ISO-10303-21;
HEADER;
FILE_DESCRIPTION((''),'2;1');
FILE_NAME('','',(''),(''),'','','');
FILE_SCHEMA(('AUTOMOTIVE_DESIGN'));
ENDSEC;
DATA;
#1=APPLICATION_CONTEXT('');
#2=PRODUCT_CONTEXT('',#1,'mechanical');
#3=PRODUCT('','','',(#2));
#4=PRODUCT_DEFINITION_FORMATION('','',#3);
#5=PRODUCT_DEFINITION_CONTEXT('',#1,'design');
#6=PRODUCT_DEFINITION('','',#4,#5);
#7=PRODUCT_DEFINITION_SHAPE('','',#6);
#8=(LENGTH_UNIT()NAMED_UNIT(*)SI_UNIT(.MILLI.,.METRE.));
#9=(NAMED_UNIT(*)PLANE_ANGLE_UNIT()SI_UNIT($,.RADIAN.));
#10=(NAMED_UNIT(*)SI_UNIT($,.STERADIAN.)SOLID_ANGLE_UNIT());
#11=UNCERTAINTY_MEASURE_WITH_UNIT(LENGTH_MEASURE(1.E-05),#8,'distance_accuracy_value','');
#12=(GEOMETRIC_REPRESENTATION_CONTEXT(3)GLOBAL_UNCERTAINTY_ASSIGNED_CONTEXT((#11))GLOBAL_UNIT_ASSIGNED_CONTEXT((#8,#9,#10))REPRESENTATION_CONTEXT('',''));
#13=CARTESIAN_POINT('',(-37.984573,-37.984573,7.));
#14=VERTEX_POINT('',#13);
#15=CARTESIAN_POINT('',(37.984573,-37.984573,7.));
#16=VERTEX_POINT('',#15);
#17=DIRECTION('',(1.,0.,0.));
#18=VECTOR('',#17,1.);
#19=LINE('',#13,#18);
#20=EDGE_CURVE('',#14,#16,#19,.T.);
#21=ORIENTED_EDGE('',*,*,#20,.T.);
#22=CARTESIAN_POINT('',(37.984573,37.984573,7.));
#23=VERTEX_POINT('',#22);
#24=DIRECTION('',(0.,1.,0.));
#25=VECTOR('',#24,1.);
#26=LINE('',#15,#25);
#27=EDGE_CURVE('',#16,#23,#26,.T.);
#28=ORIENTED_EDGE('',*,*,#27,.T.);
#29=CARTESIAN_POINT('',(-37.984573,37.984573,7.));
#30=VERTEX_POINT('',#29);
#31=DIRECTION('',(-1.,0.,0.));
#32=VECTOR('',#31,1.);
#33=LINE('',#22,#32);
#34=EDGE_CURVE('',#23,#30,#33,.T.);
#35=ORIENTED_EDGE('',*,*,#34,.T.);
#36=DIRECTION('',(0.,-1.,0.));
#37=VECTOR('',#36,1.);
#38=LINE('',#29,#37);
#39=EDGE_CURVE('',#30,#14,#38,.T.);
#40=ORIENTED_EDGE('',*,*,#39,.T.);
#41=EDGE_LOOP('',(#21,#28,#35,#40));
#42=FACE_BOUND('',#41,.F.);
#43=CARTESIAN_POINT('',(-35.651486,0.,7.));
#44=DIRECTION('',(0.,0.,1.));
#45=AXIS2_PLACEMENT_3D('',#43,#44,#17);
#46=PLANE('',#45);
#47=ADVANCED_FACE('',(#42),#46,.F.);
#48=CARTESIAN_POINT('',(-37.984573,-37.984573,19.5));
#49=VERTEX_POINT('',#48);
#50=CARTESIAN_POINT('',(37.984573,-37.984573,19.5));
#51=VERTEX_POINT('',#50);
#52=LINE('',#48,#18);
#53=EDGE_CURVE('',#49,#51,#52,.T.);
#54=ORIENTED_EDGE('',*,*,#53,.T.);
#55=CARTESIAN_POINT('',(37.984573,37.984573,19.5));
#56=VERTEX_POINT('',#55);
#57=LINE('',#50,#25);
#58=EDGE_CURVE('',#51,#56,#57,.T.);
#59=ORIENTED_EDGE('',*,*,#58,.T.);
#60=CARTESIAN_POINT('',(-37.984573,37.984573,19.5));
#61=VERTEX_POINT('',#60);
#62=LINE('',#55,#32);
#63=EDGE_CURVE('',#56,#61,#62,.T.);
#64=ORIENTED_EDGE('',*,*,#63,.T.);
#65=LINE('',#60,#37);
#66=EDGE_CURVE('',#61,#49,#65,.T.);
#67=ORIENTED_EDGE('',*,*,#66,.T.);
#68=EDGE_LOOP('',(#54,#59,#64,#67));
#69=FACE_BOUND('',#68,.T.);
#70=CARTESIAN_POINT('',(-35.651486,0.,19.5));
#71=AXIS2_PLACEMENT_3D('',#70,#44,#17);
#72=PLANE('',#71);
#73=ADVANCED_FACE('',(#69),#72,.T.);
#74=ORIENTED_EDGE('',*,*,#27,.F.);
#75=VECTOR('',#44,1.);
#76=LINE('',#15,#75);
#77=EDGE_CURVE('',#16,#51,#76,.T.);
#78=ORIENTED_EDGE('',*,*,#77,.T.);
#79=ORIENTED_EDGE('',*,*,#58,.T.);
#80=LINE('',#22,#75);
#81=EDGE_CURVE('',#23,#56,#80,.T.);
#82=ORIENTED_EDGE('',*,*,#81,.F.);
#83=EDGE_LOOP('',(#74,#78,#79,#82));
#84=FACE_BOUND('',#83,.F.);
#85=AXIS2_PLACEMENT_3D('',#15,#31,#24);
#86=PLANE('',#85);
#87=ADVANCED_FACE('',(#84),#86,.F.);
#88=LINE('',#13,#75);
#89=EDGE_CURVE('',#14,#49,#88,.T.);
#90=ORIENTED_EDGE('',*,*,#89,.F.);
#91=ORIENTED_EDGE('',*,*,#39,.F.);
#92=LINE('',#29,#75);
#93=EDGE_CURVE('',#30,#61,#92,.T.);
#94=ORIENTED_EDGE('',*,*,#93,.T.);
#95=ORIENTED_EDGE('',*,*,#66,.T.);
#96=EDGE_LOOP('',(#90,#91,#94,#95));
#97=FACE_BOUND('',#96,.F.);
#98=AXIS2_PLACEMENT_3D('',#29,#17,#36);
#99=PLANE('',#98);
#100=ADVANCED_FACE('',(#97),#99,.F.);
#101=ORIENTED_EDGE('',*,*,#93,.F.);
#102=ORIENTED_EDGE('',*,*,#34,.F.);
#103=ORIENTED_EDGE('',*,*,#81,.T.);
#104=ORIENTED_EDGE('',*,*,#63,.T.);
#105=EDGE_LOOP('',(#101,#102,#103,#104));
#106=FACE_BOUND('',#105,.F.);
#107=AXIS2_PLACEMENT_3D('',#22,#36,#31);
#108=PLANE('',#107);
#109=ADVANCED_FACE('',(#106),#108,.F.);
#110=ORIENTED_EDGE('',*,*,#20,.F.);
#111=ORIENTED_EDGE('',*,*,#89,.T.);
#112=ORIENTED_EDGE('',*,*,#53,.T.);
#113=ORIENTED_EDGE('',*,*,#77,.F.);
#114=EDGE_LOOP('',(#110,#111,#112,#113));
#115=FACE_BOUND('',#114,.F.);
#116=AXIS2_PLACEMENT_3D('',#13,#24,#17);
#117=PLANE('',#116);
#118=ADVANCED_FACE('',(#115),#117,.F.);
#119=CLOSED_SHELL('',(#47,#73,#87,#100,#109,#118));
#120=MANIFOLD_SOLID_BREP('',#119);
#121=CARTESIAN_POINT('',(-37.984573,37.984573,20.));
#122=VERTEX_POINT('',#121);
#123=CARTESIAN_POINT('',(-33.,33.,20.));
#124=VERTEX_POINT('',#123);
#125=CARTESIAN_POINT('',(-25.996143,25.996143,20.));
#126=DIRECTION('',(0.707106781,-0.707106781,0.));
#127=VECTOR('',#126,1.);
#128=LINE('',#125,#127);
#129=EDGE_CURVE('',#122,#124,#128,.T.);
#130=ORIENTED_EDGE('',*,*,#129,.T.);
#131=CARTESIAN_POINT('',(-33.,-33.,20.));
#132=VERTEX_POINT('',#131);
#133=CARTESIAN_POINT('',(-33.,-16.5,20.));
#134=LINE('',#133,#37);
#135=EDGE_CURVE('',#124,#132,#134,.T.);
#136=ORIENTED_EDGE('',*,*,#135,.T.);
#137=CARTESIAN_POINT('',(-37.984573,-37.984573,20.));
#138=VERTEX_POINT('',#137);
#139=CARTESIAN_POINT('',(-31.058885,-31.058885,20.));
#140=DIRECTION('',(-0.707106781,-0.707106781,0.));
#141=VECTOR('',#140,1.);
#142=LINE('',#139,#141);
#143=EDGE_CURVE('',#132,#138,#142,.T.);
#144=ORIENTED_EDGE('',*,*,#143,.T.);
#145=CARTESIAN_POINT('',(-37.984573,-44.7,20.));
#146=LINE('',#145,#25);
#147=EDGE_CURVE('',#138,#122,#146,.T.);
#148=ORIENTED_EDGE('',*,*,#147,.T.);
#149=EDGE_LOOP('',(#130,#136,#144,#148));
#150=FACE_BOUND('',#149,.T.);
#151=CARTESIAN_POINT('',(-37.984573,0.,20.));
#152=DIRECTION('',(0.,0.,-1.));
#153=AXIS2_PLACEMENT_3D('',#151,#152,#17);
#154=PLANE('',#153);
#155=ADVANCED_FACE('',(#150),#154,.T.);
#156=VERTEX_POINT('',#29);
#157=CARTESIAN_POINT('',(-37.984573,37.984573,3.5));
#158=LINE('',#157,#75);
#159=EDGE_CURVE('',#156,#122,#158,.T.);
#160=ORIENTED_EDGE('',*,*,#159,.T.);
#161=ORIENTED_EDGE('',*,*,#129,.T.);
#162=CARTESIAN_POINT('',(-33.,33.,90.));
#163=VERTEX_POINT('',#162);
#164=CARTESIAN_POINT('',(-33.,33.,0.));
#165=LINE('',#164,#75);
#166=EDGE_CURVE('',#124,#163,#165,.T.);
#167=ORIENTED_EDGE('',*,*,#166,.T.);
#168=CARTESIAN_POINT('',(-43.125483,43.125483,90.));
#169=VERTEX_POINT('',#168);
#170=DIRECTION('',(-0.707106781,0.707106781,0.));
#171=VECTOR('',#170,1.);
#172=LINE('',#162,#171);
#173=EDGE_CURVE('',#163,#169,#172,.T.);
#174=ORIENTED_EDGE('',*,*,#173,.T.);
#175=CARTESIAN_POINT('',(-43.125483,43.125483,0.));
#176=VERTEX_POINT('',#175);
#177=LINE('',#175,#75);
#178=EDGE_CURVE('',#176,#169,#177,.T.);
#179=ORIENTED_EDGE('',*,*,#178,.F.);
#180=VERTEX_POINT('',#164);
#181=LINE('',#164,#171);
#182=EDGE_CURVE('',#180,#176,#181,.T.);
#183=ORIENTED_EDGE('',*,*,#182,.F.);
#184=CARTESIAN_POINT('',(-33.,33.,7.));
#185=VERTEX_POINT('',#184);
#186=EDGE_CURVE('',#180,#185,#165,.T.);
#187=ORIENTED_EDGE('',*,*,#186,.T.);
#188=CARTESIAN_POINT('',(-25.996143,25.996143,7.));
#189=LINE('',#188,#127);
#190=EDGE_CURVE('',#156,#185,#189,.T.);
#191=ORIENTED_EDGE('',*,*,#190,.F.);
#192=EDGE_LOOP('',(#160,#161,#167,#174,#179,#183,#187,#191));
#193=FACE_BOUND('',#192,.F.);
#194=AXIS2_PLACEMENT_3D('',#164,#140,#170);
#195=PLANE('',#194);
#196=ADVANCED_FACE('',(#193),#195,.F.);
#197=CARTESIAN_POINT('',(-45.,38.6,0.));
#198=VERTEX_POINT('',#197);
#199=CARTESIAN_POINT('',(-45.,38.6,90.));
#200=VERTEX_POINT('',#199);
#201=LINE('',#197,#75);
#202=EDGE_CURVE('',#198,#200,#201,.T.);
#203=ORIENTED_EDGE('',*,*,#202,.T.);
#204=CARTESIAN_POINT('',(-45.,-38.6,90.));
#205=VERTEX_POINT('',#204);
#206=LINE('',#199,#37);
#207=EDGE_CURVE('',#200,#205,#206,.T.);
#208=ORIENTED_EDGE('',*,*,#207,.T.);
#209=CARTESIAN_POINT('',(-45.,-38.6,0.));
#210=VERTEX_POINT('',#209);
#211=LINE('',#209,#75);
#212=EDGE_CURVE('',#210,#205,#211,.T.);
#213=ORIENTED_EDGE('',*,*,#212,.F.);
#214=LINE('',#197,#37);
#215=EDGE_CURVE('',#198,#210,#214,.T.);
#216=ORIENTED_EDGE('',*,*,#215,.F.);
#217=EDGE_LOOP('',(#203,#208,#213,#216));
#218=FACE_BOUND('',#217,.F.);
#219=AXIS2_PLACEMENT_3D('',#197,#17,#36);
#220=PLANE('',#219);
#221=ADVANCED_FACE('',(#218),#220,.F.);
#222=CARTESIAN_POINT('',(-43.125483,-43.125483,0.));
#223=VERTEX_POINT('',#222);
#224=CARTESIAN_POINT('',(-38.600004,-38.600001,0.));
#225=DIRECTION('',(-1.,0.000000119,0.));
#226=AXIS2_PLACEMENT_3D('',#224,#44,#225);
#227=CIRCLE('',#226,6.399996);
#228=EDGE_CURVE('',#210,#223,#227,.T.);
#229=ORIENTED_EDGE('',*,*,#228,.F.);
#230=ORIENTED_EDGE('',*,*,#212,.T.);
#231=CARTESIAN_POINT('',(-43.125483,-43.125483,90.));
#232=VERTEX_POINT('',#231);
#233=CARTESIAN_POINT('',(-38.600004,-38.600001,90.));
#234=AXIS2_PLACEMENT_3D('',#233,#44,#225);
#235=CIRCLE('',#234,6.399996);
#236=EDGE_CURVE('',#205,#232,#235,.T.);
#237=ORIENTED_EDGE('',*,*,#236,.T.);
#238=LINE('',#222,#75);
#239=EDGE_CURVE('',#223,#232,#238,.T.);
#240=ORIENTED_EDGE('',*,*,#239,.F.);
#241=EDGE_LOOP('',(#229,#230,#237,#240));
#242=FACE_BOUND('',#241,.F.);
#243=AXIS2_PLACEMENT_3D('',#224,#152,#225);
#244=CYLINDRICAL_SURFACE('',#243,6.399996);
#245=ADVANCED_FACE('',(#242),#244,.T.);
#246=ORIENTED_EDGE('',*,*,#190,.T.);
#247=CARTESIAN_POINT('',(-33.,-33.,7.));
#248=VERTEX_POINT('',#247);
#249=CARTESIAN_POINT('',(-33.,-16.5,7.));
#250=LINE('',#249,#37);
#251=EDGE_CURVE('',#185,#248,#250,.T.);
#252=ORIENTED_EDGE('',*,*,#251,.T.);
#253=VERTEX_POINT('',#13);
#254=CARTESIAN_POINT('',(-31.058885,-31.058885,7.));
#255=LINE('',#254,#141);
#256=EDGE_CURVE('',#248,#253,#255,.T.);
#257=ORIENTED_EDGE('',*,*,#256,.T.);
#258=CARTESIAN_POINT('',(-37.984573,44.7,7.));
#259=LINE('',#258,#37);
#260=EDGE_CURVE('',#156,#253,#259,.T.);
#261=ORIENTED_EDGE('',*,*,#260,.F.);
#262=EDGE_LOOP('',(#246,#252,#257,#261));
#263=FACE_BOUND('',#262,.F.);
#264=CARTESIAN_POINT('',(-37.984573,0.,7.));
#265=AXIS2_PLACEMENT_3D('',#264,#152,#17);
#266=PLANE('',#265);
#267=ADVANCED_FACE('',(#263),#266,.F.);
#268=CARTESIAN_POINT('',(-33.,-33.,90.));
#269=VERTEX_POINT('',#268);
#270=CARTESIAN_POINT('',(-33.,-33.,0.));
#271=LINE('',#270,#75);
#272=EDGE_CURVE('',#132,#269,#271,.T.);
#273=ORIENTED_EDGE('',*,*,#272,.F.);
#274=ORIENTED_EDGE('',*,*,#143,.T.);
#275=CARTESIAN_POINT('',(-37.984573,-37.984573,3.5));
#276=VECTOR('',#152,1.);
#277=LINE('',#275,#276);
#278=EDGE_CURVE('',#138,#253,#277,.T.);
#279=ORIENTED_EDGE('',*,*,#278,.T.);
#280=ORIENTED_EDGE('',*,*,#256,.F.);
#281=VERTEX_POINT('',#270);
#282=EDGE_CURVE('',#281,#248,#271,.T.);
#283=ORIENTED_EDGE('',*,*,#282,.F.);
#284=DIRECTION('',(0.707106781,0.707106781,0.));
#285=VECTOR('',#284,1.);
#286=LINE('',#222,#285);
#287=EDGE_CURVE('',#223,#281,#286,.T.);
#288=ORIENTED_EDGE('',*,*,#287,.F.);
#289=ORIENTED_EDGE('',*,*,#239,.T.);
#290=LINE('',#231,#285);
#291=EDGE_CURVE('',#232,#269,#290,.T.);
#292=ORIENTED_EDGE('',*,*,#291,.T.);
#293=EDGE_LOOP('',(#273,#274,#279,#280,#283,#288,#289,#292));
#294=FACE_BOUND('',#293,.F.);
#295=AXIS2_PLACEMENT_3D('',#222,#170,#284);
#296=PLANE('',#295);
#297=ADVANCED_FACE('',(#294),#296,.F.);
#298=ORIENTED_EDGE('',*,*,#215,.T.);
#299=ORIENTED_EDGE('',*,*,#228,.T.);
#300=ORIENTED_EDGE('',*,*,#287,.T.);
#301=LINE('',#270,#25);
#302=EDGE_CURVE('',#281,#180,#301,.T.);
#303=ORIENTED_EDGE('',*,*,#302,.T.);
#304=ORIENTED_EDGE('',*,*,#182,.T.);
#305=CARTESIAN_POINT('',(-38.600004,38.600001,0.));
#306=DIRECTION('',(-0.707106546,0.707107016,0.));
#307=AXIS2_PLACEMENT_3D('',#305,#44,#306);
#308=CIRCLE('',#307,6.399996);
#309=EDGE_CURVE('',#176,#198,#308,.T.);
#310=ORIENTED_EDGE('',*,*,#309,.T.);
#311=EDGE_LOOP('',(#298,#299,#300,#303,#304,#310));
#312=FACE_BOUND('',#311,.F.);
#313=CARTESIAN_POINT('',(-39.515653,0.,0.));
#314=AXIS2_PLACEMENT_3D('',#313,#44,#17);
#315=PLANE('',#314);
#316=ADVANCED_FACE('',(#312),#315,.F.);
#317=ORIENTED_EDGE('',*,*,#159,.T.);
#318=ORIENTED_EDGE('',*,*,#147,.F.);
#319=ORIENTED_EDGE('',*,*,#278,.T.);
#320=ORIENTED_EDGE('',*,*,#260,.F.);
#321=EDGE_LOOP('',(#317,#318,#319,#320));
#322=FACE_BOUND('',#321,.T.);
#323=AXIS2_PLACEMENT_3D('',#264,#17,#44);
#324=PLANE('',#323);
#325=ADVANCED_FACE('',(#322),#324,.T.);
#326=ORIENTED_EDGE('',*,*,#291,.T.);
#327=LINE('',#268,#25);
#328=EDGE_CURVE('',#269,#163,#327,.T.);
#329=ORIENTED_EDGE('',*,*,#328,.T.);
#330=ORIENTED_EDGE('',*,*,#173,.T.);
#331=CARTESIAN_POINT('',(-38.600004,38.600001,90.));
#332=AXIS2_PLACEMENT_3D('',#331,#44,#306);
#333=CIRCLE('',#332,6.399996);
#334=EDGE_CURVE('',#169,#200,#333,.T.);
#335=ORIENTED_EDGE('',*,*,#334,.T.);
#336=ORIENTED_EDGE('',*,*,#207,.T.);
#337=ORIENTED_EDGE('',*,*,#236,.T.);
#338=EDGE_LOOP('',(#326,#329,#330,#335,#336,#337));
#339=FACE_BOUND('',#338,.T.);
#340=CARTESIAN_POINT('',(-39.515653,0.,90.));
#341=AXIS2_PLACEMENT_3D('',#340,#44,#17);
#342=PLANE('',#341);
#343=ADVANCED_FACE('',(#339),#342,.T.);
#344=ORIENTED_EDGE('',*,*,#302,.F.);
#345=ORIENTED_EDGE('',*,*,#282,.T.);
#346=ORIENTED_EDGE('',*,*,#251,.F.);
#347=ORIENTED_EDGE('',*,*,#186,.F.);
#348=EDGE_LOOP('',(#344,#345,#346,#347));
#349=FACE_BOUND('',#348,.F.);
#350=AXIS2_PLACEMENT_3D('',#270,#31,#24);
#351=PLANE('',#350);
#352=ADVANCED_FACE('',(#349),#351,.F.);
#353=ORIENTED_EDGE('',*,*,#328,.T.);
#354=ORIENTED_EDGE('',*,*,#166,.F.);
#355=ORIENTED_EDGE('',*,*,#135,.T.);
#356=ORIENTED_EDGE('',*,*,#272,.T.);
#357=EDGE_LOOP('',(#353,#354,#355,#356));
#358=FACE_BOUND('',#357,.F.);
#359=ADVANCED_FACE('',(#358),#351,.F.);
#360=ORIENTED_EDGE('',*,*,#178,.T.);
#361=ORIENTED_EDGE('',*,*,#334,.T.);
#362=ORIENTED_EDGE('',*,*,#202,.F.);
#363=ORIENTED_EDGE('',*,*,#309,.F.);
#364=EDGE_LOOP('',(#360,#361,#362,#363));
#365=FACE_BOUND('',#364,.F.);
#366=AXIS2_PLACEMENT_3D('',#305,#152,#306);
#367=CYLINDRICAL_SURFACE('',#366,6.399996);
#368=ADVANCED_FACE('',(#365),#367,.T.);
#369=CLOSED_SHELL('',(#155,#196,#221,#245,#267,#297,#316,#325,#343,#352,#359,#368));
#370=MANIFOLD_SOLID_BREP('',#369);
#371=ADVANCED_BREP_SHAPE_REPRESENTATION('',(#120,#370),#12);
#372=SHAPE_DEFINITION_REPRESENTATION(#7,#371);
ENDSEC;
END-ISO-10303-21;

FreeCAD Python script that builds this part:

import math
import FreeCAD as App
import Part
import Sketcher
Q = App.Units.Quantity

doc = App.newDocument("Part")
body = doc.addObject("PartDesign::Body", "Body")

# Sketch on XY plane
sketch1 = body.newObject("Sketcher::SketchObject", "Sketch")
sketch1.AttachmentSupport = (doc.getObject("XY_Plane"), [""])
sketch1.MapMode = "FlatFace"
sketch1.addGeometry(Part.ArcOfCircle(Part.Circle(App.Vector(-38.6, -38.6, 0), App.Vector(0, 0, 1), 6.4), math.radians(180), math.radians(225)), False)
sketch1.addGeometry(Part.LineSegment(App.Vector(-43.1, -43.1, 0), App.Vector(-33, -33, 0)), False)
sketch1.addGeometry(Part.LineSegment(App.Vector(-33, -33, 0), App.Vector(-33, 33, 0)), False)
sketch1.addGeometry(Part.LineSegment(App.Vector(-33, 33, 0), App.Vector(-43.1, 43.1, 0)), False)
sketch1.addGeometry(Part.ArcOfCircle(Part.Circle(App.Vector(-38.6, 38.6, 0), App.Vector(0, 0, 1), 6.4), math.radians(135), math.radians(180)), False)
sketch1.addGeometry(Part.LineSegment(App.Vector(-45, 38.6, 0), App.Vector(-45, -38.6, 0)), False)
sketch1.addConstraint(Sketcher.Constraint("Coincident", 0, 2, 1, 1))
sketch1.addConstraint(Sketcher.Constraint("Coincident", 1, 2, 2, 1))
sketch1.addConstraint(Sketcher.Constraint("Coincident", 2, 2, 3, 1))
sketch1.addConstraint(Sketcher.Constraint("Coincident", 3, 2, 4, 1))
sketch1.addConstraint(Sketcher.Constraint("Tangent", 4, 2, 5, 1))
sketch1.addConstraint(Sketcher.Constraint("Tangent", 5, 2, 0, 1))
sketch1.addConstraint(Sketcher.Constraint("Vertical", 2))
sketch1.addConstraint(Sketcher.Constraint("Vertical", 5))
sketch1.addConstraint(Sketcher.Constraint("Equal", 0, 4))
sketch1.addConstraint(Sketcher.Constraint("Symmetric", 0, 2, 3, 2, -1))
sketch1.addConstraint(Sketcher.Constraint("Perpendicular", 1, 3))
sketch1.addConstraint(Sketcher.Constraint("Equal", 1, 3))
sketch1.addConstraint(Sketcher.Constraint("DistanceY", 2, 1, 2, 2, Q("66 mm")))
sketch1.addConstraint(Sketcher.Constraint("DistanceY", 5, 2, 5, 1, Q("77.2 mm")))
sketch1.addConstraint(Sketcher.Constraint("DistanceX", 1, 2, -1, 1, Q("33 mm")))
sketch1.addConstraint(Sketcher.Constraint("DistanceX", 4, 2, -1, 1, Q("45 mm")))
sketch1.addConstraint(Sketcher.Constraint("Radius", 0, Q("6.399996 mm")))
pad1 = body.newObject("PartDesign::Pad", "Pad")
pad1.Profile = sketch1
pad1.Length = 90

# Sketch on XZ plane
sketch2 = body.newObject("Sketcher::SketchObject", "Sketch001")
sketch2.AttachmentSupport = (doc.getObject("XZ_Plane"), [""])
sketch2.MapMode = "FlatFace"
sketch2.addGeometry(Part.LineSegment(App.Vector(-38, 20, 0), App.Vector(-38, 7, 0)), False)
sketch2.addGeometry(Part.LineSegment(App.Vector(-38, 7, 0), App.Vector(-33, 7, 0)), False)
sketch2.addGeometry(Part.LineSegment(App.Vector(-33, 7, 0), App.Vector(-33, 20, 0)), False)
sketch2.addGeometry(Part.LineSegment(App.Vector(-33, 20, 0), App.Vector(-38, 20, 0)), False)
sketch2.addConstraint(Sketcher.Constraint("Coincident", 0, 2, 1, 1))
sketch2.addConstraint(Sketcher.Constraint("Coincident", 1, 2, 2, 1))
sketch2.addConstraint(Sketcher.Constraint("Coincident", 2, 2, 3, 1))
sketch2.addConstraint(Sketcher.Constraint("Coincident", 3, 2, 0, 1))
sketch2.addConstraint(Sketcher.Constraint("Vertical", 0))
sketch2.addConstraint(Sketcher.Constraint("Horizontal", 1))
sketch2.addConstraint(Sketcher.Constraint("Vertical", 2))
sketch2.addConstraint(Sketcher.Constraint("Horizontal", 3))
sketch2.addConstraint(Sketcher.Constraint("DistanceX", 1, 1, 1, 2, Q("5 mm")))
sketch2.addConstraint(Sketcher.Constraint("DistanceY", 0, 2, 0, 1, Q("13 mm")))
sketch2.addConstraint(Sketcher.Constraint("DistanceY", -1, 1, 0, 2, Q("7 mm")))
sketch2.addConstraint(Sketcher.Constraint("DistanceX", 0, 2, -1, 1, Q("37.984573 mm")))
pocket1 = body.newObject("PartDesign::Pocket", "Pocket")
pocket1.Profile = sketch2
pocket1.Length = 89.4
pocket1.Midplane = True
body2 = doc.addObject("PartDesign::Body", "Body001")

# Sketch on XY plane
sketch3 = body2.newObject("Sketcher::SketchObject", "Sketch002")
sketch3.AttachmentSupport = (doc.getObject("XY_Plane001"), [""])
sketch3.MapMode = "FlatFace"
sketch3.AttachmentOffset = App.Placement(App.Vector(0, 0, 7), App.Rotation())
sketch3.addGeometry(Part.LineSegment(App.Vector(-38, 38, 0), App.Vector(-38, -38, 0)), False)
sketch3.addGeometry(Part.LineSegment(App.Vector(-38, -38, 0), App.Vector(38, -38, 0)), False)
sketch3.addGeometry(Part.LineSegment(App.Vector(38, -38, 0), App.Vector(38, 38, 0)), False)
sketch3.addGeometry(Part.LineSegment(App.Vector(38, 38, 0), App.Vector(-38, 38, 0)), False)
sketch3.addConstraint(Sketcher.Constraint("Coincident", 0, 2, 1, 1))
sketch3.addConstraint(Sketcher.Constraint("Coincident", 1, 2, 2, 1))
sketch3.addConstraint(Sketcher.Constraint("Coincident", 2, 2, 3, 1))
sketch3.addConstraint(Sketcher.Constraint("Coincident", 3, 2, 0, 1))
sketch3.addConstraint(Sketcher.Constraint("Vertical", 0))
sketch3.addConstraint(Sketcher.Constraint("Horizontal", 1))
sketch3.addConstraint(Sketcher.Constraint("Vertical", 2))
sketch3.addConstraint(Sketcher.Constraint("Horizontal", 3))
sketch3.addConstraint(Sketcher.Constraint("Symmetric", 0, 2, 2, 2, -1, 1))
sketch3.addConstraint(Sketcher.Constraint("Equal", 3, 0))
sketch3.addConstraint(Sketcher.Constraint("DistanceX", 1, 1, 1, 2, Q("75.969146 mm")))
pad2 = body2.newObject("PartDesign::Pad", "Pad001")
pad2.Profile = sketch3
pad2.Length = 12.5

doc.recompute()
